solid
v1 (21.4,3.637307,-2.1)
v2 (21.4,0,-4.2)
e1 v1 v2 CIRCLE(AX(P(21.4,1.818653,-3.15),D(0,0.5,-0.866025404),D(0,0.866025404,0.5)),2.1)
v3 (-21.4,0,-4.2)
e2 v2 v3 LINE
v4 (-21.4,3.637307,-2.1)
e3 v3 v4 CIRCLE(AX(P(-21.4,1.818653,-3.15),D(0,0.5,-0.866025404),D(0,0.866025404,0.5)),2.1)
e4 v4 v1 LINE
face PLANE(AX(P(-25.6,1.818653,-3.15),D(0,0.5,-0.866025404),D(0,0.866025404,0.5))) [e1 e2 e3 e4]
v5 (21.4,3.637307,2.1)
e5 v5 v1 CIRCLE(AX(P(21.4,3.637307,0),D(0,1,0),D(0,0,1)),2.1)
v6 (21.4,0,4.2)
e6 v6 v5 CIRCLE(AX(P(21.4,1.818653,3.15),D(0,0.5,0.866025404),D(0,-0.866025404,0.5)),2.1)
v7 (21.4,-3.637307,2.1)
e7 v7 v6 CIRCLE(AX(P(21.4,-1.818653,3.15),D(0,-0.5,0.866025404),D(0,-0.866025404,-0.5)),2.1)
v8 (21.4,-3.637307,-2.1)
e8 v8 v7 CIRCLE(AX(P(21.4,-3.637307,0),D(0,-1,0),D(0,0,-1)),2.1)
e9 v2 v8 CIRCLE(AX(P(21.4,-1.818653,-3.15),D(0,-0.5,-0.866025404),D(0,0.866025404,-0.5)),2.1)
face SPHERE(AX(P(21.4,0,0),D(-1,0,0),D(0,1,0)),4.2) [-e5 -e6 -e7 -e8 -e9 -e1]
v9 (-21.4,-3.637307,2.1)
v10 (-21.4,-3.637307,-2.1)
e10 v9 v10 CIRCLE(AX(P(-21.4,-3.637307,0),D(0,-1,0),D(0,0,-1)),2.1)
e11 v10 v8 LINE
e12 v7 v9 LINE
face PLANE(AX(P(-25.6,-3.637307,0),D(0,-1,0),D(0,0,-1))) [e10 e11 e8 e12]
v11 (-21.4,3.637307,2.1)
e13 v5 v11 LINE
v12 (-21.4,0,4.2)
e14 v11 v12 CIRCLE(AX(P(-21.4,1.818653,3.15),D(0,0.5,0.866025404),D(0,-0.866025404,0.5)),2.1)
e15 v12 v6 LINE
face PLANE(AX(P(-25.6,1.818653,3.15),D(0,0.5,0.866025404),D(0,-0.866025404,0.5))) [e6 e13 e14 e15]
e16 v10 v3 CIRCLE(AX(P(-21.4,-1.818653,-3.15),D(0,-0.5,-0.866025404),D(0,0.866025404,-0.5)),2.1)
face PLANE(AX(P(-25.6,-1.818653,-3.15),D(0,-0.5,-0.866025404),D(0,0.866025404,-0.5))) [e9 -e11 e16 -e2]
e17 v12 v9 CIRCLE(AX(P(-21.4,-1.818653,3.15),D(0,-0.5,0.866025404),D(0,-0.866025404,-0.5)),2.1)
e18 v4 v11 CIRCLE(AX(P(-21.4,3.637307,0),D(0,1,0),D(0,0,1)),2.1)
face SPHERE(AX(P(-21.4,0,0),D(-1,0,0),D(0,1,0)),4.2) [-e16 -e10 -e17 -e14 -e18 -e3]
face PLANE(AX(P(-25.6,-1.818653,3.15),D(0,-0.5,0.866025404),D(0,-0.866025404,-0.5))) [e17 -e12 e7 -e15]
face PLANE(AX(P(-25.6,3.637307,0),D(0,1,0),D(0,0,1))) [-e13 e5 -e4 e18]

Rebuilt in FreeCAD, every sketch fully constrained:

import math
import FreeCAD as App
import Part
import Sketcher
from FreeCAD import Vector
Q = App.Units.Quantity

doc = App.newDocument("Part")
params = doc.addObject("Spreadsheet::Sheet", "Params")
for row, (alias, value) in enumerate([
    ("sketch1_radius", "4.2 mm"),
    ("sketch1_width", "42.8 mm"),
    ("revolution_angle", "360 deg"),
    ("sketch2_radius", "4.2 mm"),
], start=1):
    params.set(f"A{row}", alias)
    params.set(f"B{row}", "=" + value)
    params.setAlias(f"B{row}", alias)

body = doc.addObject("PartDesign::Body", "Body")

# Sketch on XY plane
sketch1 = doc.addObject("Sketcher::SketchObject", "Sketch")
body.addObject(sketch1)
sketch1.AttachmentSupport = (doc.XY_Plane, [""])
sketch1.MapMode = "FlatFace"
sketch1.addGeometry(Part.LineSegment(Vector(21.4, 4.2, 0), Vector(-21.4, 4.2, 0)), False)
sketch1.addGeometry(Part.ArcOfCircle(Part.Circle(Vector(-21.4, 0, 0), Vector(0, 0, 1), 4.2), math.radians(90), math.radians(180)), False)
sketch1.addGeometry(Part.LineSegment(Vector(-25.6, 0, 0), Vector(25.6, 0, 0)), False)
sketch1.addGeometry(Part.ArcOfCircle(Part.Circle(Vector(21.4, 0, 0), Vector(0, 0, 1), 4.2), math.radians(0), math.radians(90)), False)
sketch1.addConstraint(Sketcher.Constraint("Tangent", 0, 2, 1, 1))
sketch1.addConstraint(Sketcher.Constraint("Coincident", 1, 2, 2, 1))
sketch1.addConstraint(Sketcher.Constraint("Coincident", 2, 2, 3, 1))
sketch1.addConstraint(Sketcher.Constraint("Tangent", 3, 2, 0, 1))
sketch1.addConstraint(Sketcher.Constraint("Horizontal", 0))
sketch1.addConstraint(Sketcher.Constraint("Horizontal", 2))
sketch1.addConstraint(Sketcher.Constraint("Equal", 1, 3))
sketch1.addConstraint(Sketcher.Constraint("Symmetric", 1, 3, 3, 3, -1, 1))
sketch1.addConstraint(Sketcher.Constraint("PointOnObject", 1, 2, -1))
sketch1.addConstraint(Sketcher.Constraint("Radius", 1, 4.2))
sketch1.addConstraint(Sketcher.Constraint("DistanceX", 0, 2, 0, 1, 42.8))
sketch1.setExpression("Constraints[9]", "Params.sketch1_radius")
sketch1.setExpression("Constraints[10]", "Params.sketch1_width")
revolution = doc.addObject("PartDesign::Revolution", "Revolution")
body.addObject(revolution)
revolution.Profile = sketch1
revolution.ReferenceAxis = (sketch1, ["H_Axis"])
revolution.setExpression("Angle", "Params.revolution_angle")

# Sketch on YZ plane
sketch2 = doc.addObject("Sketcher::SketchObject", "Sketch001")
body.addObject(sketch2)
sketch2.AttachmentSupport = (doc.YZ_Plane, [""])
sketch2.MapMode = "FlatFace"
sketch2.addGeometry(Part.LineSegment(Vector(0, 4.2, 0), Vector(3.637307, 2.1, 0)), False)
sketch2.addGeometry(Part.ArcOfCircle(Part.Circle(Vector(0, 0, 0), Vector(0, 0, 1), 4.2), math.radians(30), math.radians(90)), False)
sketch2.addGeometry(Part.ArcOfCircle(Part.Circle(Vector(0, 0, 0), Vector(0, 0, 1), 4.2), math.radians(-30), math.radians(30)), False)
sketch2.addGeometry(Part.LineSegment(Vector(3.637307, 2.1, 0), Vector(3.637307, -2.1, 0)), False)
sketch2.addGeometry(Part.ArcOfCircle(Part.Circle(Vector(0, 0, 0), Vector(0, 0, 1), 4.2), math.radians(-90), math.radians(-30)), False)
sketch2.addGeometry(Part.LineSegment(Vector(3.637307, -2.1, 0), Vector(0, -4.2, 0)), False)
sketch2.addGeometry(Part.ArcOfCircle(Part.Circle(Vector(0, 0, 0), Vector(0, 0, 1), 4.2), math.radians(-150), math.radians(-90)), False)
sketch2.addGeometry(Part.LineSegment(Vector(0, -4.2, 0), Vector(-3.637307, -2.1, 0)), False)
sketch2.addGeometry(Part.LineSegment(Vector(-3.637307, -2.1, 0), Vector(-3.637307, 2.1, 0)), False)
sketch2.addGeometry(Part.ArcOfCircle(Part.Circle(Vector(0, 0, 0), Vector(0, 0, 1), 4.2), math.radians(150), math.radians(210)), False)
sketch2.addGeometry(Part.LineSegment(Vector(-3.637307, 2.1, 0), Vector(0, 4.2, 0)), False)
sketch2.addGeometry(Part.ArcOfCircle(Part.Circle(Vector(0, 0, 0), Vector(0, 0, 1), 4.2), math.radians(90), math.radians(150)), False)
sketch2.addConstraint(Sketcher.Constraint("Coincident", 0, 1, 1, 2))
sketch2.addConstraint(Sketcher.Constraint("Coincident", 1, 1, 0, 2))
sketch2.addConstraint(Sketcher.Constraint("Coincident", 2, 1, 3, 2))
sketch2.addConstraint(Sketcher.Constraint("Coincident", 3, 1, 2, 2))
sketch2.addConstraint(Sketcher.Constraint("Coincident", 4, 1, 5, 2))
sketch2.addConstraint(Sketcher.Constraint("Coincident", 5, 1, 4, 2))
sketch2.addConstraint(Sketcher.Constraint("Coincident", 6, 1, 7, 2))
sketch2.addConstraint(Sketcher.Constraint("Coincident", 7, 1, 6, 2))
sketch2.addConstraint(Sketcher.Constraint("Coincident", 8, 1, 9, 2))
sketch2.addConstraint(Sketcher.Constraint("Coincident", 9, 1, 8, 2))
sketch2.addConstraint(Sketcher.Constraint("Coincident", 10, 1, 11, 2))
sketch2.addConstraint(Sketcher.Constraint("Coincident", 11, 1, 10, 2))
sketch2.addConstraint(Sketcher.Constraint("Vertical", 3))
sketch2.addConstraint(Sketcher.Constraint("Vertical", 8))
sketch2.addConstraint(Sketcher.Constraint("Coincident", 1, 3, -1, 1))
sketch2.addConstraint(Sketcher.Constraint("Coincident", 2, 3, -1, 1))
sketch2.addConstraint(Sketcher.Constraint("Coincident", 4, 3, -1, 1))
sketch2.addConstraint(Sketcher.Constraint("Coincident", 6, 3, -1, 1))
sketch2.addConstraint(Sketcher.Constraint("Coincident", 9, 3, -1, 1))
sketch2.addConstraint(Sketcher.Constraint("Coincident", 11, 3, -1, 1))
sketch2.addConstraint(Sketcher.Constraint("Coincident", 3, 1, 1, 1))
sketch2.addConstraint(Sketcher.Constraint("Coincident", 5, 1, 2, 1))
sketch2.addConstraint(Sketcher.Constraint("Coincident", 7, 1, 4, 1))
sketch2.addConstraint(Sketcher.Constraint("Coincident", 8, 1, 6, 1))
sketch2.addConstraint(Sketcher.Constraint("Coincident", 10, 1, 9, 1))
sketch2.addConstraint(Sketcher.Constraint("PointOnObject", 0, 1, -2))
sketch2.addConstraint(Sketcher.Constraint("PointOnObject", 4, 1, -2))
sketch2.addConstraint(Sketcher.Constraint("PointOnObject", 11, 1, -2))
sketch2.addConstraint(Sketcher.Constraint("Parallel", 0, 7))
sketch2.addConstraint(Sketcher.Constraint("Radius", 1, 4.2))
sketch2.addConstraint(Sketcher.Constraint("Angle", 0, Q("-30 deg")))
sketch2.setExpression("Constraints[29]", "Params.sketch2_radius")
pocket1 = doc.addObject("PartDesign::Pocket", "Pocket")
body.addObject(pocket1)
pocket1.Profile = sketch2
pocket1.Type = "ThroughAll"
pocket1.Midplane = True

doc.recompute()
